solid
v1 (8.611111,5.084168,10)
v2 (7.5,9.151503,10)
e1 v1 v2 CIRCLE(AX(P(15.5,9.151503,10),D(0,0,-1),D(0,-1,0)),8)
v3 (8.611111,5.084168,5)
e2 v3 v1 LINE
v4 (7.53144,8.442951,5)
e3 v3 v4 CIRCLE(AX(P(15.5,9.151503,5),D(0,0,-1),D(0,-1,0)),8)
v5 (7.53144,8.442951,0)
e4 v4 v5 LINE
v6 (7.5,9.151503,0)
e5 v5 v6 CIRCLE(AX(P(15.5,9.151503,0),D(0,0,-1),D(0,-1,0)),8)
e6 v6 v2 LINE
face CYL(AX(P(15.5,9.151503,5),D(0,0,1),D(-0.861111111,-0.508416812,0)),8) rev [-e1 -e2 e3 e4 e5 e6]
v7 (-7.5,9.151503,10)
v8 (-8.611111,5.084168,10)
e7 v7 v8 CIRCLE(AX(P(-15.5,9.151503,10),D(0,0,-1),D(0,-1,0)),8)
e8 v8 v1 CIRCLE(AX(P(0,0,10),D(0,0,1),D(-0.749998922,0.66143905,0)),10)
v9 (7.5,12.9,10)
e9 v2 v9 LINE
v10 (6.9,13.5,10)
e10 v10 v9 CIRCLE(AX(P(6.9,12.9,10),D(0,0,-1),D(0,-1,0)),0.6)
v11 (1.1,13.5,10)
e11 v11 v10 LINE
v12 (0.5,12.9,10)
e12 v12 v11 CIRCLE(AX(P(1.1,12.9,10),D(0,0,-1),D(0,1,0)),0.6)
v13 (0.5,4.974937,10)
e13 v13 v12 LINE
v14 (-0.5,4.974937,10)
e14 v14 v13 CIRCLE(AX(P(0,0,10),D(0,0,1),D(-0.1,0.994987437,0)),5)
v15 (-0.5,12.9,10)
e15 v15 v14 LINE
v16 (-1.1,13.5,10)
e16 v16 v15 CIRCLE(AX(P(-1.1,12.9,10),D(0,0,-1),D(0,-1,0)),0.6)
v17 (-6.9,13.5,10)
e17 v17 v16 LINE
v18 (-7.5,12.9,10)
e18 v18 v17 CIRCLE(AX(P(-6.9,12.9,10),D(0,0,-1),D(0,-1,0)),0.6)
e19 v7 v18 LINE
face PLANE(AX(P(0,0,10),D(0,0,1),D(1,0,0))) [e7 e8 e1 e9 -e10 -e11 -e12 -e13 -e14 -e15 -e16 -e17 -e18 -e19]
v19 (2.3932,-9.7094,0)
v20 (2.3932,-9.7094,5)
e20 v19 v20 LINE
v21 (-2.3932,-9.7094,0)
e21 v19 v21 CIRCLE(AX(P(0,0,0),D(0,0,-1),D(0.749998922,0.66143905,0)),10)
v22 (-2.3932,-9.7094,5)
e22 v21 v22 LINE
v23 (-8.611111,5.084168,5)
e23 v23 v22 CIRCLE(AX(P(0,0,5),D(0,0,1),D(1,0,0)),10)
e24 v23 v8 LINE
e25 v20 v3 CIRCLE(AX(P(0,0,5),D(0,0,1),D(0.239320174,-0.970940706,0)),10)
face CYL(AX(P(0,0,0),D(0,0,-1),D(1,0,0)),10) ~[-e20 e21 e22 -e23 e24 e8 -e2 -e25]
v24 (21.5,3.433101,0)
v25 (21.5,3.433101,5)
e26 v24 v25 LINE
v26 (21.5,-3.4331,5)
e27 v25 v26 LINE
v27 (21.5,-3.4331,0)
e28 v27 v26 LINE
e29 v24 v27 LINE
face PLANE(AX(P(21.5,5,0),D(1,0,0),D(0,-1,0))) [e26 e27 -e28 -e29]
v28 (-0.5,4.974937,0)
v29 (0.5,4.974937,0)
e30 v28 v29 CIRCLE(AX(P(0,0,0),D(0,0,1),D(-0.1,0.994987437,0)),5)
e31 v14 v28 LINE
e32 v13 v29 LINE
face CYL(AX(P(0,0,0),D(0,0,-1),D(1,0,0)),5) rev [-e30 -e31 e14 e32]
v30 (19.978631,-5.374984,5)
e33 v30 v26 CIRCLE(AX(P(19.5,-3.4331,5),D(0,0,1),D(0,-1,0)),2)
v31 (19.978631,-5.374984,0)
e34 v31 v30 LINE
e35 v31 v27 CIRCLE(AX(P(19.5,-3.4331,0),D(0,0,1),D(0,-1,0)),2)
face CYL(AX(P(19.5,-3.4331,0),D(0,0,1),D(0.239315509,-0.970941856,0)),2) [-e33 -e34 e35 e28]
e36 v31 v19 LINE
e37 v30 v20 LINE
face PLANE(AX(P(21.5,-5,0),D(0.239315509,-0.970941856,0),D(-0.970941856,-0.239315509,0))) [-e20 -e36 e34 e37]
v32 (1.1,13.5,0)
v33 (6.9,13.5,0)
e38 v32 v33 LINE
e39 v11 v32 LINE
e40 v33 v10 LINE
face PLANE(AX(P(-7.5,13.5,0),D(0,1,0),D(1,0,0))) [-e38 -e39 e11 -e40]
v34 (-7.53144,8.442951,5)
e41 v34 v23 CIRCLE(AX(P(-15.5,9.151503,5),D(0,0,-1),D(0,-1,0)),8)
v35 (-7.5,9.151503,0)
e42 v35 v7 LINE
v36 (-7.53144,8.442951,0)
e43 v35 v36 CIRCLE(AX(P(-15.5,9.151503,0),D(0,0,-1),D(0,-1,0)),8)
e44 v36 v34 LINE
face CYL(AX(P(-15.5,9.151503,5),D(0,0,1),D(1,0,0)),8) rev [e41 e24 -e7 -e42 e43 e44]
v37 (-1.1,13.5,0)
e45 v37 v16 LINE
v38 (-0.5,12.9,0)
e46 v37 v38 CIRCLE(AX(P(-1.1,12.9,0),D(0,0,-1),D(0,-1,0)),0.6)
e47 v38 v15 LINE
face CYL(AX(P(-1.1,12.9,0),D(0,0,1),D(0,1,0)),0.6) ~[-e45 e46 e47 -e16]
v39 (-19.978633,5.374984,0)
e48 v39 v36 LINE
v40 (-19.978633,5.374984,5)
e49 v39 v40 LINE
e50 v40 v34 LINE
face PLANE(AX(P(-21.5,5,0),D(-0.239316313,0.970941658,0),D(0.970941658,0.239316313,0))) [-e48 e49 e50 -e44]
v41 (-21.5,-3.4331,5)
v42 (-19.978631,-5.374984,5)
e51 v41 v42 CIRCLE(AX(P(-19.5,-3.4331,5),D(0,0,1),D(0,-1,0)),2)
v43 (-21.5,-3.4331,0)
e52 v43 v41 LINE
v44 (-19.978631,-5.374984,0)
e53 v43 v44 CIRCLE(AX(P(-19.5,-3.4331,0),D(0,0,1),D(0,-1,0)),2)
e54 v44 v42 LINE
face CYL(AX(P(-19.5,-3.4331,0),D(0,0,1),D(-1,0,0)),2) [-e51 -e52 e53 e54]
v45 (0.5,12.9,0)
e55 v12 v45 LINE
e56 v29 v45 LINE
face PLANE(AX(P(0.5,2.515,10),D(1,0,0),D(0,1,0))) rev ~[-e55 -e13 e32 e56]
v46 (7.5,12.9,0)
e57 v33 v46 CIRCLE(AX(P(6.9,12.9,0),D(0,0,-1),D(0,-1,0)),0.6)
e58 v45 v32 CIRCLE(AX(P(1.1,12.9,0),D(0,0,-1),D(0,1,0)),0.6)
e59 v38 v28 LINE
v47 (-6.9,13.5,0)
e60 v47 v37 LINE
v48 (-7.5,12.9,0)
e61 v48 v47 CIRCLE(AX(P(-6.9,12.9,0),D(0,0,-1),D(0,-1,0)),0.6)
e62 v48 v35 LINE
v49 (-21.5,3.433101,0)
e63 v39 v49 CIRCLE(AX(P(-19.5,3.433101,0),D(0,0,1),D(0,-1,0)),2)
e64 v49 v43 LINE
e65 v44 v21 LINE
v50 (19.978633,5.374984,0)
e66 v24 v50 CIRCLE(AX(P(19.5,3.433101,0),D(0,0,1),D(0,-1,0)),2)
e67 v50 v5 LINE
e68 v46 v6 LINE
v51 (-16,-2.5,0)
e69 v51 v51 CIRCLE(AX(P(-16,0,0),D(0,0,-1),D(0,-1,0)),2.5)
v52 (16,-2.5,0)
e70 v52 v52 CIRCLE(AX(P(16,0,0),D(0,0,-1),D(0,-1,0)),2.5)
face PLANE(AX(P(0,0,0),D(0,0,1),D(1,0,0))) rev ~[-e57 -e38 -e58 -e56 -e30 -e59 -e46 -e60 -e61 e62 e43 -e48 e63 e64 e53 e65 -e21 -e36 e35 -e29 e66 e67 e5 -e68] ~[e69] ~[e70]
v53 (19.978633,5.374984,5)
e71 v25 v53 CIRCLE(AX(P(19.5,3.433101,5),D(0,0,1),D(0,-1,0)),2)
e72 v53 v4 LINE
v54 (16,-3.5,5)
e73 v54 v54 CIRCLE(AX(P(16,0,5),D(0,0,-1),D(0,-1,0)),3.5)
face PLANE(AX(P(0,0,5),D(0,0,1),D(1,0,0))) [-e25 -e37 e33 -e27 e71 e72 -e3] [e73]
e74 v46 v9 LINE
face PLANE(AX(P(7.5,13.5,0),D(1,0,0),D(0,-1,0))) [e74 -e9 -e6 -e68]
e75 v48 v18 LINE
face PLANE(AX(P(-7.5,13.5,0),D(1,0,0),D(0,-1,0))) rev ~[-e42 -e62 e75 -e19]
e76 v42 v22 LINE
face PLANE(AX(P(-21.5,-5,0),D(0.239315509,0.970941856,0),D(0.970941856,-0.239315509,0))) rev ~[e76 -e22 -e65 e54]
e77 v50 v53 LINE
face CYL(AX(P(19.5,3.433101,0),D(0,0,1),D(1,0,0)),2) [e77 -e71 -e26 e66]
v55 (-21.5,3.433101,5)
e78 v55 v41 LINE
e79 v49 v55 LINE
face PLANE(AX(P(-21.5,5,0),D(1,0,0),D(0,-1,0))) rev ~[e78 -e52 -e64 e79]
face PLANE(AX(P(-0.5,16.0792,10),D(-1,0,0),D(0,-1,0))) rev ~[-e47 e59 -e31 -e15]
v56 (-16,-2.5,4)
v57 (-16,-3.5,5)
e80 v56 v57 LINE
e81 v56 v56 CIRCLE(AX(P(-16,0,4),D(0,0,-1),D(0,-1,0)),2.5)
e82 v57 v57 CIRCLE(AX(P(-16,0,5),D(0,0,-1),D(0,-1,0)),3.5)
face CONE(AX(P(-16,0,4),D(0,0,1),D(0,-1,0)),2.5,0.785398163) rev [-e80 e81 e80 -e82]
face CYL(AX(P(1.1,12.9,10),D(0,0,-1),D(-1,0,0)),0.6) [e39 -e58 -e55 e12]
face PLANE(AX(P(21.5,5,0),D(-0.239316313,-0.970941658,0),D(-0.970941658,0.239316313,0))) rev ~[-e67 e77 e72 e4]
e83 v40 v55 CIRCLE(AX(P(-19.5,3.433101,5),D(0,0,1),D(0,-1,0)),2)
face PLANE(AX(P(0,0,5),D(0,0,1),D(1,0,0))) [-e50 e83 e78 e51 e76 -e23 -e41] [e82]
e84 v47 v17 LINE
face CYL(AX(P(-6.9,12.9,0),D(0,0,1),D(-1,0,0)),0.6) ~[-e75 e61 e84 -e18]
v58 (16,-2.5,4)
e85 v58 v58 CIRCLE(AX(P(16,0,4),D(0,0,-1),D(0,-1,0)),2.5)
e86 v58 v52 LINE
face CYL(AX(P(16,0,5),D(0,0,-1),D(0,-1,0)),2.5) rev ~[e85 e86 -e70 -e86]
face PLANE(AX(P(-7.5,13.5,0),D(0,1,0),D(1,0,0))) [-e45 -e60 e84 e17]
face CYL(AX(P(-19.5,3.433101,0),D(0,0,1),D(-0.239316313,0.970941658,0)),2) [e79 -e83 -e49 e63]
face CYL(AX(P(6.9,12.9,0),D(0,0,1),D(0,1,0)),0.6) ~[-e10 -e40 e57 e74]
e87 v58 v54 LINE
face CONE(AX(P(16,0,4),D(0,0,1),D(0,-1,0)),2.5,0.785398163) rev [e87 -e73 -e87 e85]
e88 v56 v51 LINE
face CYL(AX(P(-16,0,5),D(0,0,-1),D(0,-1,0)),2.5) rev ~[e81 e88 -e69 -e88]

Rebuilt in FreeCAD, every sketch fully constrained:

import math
import FreeCAD as App
import Part
import Sketcher


def edges_at(feature, points):
    """Names of the edges that pass closest to the given points."""
    edges = feature.Shape.Edges
    near = lambda p: min(range(len(edges)), key=lambda i: edges[i].distToShape(Part.Vertex(*p))[0])
    return sorted({f"Edge{near(p) + 1}" for p in points})


def add_polygon(sketch, points):
    """Adds a closed chain of lines whose ends are joined by coincident constraints."""
    first, n = sketch.GeometryCount, len(points)
    for a, b in zip(points, points[1:] + points[:1]):
        sketch.addGeometry(Part.LineSegment(App.Vector(*a, 0), App.Vector(*b, 0)), False)
    for i in range(n):
        sketch.addConstraint(Sketcher.Constraint("Coincident", first + i, 2, first + (i + 1) % n, 1))

doc = App.newDocument("Part")
params = doc.addObject("Spreadsheet::Sheet", "Params")
for row, (alias, value) in enumerate([
    ("sketch1_radius", "10 mm"),
    ("sketch1_height", "10 mm"),
    ("pad1_length", "5 mm"),
    ("sketch2_diameter", "10 mm"),
    ("sketch2_radius", "10 mm"),
    ("sketch2_width", "15 mm"),
    ("pad2_length", "10 mm"),
    ("fillet_radius", "8 mm"),
    ("fillet2_radius", "2 mm"),
    ("sketch3_width", "1 mm"),
    ("fillet3_radius", "0.6 mm"),
    ("sketch4_diameter", "5 mm"),
    ("hole_diameter", "5 mm"),
    ("chamfer_size", "1 mm"),
], start=1):
    params.set(f"A{row}", alias)
    params.set(f"B{row}", "=" + value)
    params.setAlias(f"B{row}", alias)

body = doc.addObject("PartDesign::Body", "Body")
body.AllowCompound = True

# Sketch on XY plane
sketch1 = body.newObject("Sketcher::SketchObject", "Sketch")
sketch1.AttachmentSupport = (doc.getObject("XY_Plane"), [""])
sketch1.MapMode = "FlatFace"
sketch1.addGeometry([
    Part.LineSegment(App.Vector(-7.5, 8.5, 0), App.Vector(-21.5, 5, 0)),  # 0
    Part.LineSegment(App.Vector(-21.5, 5, 0), App.Vector(-21.5, -5, 0)),  # 1
    Part.LineSegment(App.Vector(-21.5, -5, 0), App.Vector(-2.4, -9.7, 0)),  # 2
    Part.ArcOfCircle(Part.Circle(App.Vector(0, 0, 0), App.Vector(0, 0, 1), 10), math.radians(139), math.radians(256)),  # 3
    Part.LineSegment(App.Vector(-7.5, 6.6, 0), App.Vector(-7.5, 8.5, 0)),  # 4
    Part.ArcOfCircle(Part.Circle(App.Vector(0, 0, 0), App.Vector(0, 0, 1), 10), math.radians(-76), math.radians(41)),  # 5
    Part.LineSegment(App.Vector(2.4, -9.7, 0), App.Vector(21.5, -5, 0)),  # 6
    Part.LineSegment(App.Vector(21.5, -5, 0), App.Vector(21.5, 5, 0)),  # 7
    Part.LineSegment(App.Vector(21.5, 5, 0), App.Vector(7.5, 8.5, 0)),  # 8
    Part.LineSegment(App.Vector(7.5, 8.5, 0), App.Vector(7.5, 6.6, 0)),  # 9
], False)
sketch1.addConstraint([
    Sketcher.Constraint("Coincident", 0, 2, 1, 1),
    Sketcher.Constraint("Coincident", 1, 2, 2, 1),
    Sketcher.Constraint("Tangent", 2, 2, 3, 2),
    Sketcher.Constraint("Coincident", 3, 1, 4, 1),
    Sketcher.Constraint("Coincident", 4, 2, 0, 1),
    Sketcher.Constraint("Tangent", 5, 1, 6, 1),
    Sketcher.Constraint("Coincident", 6, 2, 7, 1),
    Sketcher.Constraint("Coincident", 7, 2, 8, 1),
    Sketcher.Constraint("Coincident", 8, 2, 9, 1),
    Sketcher.Constraint("Coincident", 9, 2, 5, 2),
    Sketcher.Constraint("Vertical", 1),
    Sketcher.Constraint("Vertical", 4),
    Sketcher.Constraint("Vertical", 7),
    Sketcher.Constraint("Vertical", 9),
    Sketcher.Constraint("Coincident", 3, 3, -1, 1),
    Sketcher.Constraint("Coincident", 5, 3, -1, 1),
    Sketcher.Constraint("Equal", 3, 5),
    Sketcher.Constraint("Symmetric", 0, 2, 6, 2, -1, 1),
    Sketcher.Constraint("Symmetric", 4, 2, 8, 2, -2),
    Sketcher.Constraint("Parallel", 0, 6),
    Sketcher.Constraint("Parallel", 2, 8),
    Sketcher.Constraint("Horizontal", 2, 2, 5, 1),
    Sketcher.Constraint("Radius", 3, 10.0),
    Sketcher.Constraint("DistanceY", 1, 2, 1, 1, 10.0),
    Sketcher.Constraint("DistanceX", 4, 2, 8, 2, 15.0),
    Sketcher.Constraint("DistanceX", 0, 2, -1, 1, 21.5),
])
sketch1.setExpression("Constraints[22]", "Params.sketch1_radius")
sketch1.setExpression("Constraints[23]", "Params.sketch1_height")
pad1 = body.newObject("PartDesign::Pad", "Pad")
pad1.Profile = sketch1
pad1.setExpression("Length", "Params.pad1_length")

# Sketch on XY plane
sketch2 = body.newObject("Sketcher::SketchObject", "Sketch001")
sketch2.AttachmentSupport = (doc.getObject("XY_Plane"), [""])
sketch2.MapMode = "FlatFace"
sketch2.addGeometry([
    Part.LineSegment(App.Vector(-8, 14, 0), App.Vector(-8, 7, 0)),  # 0
    Part.ArcOfCircle(Part.Circle(App.Vector(0, 0, 0), App.Vector(0, 0, 1), 10), math.radians(139), math.radians(401)),  # 1
    Part.LineSegment(App.Vector(8, 7, 0), App.Vector(8, 14, 0)),  # 2
    Part.LineSegment(App.Vector(8, 14, 0), App.Vector(-8, 14, 0)),  # 3
    Part.Circle(App.Vector(0, 0, 0), App.Vector(0, 0, 1), 5),  # 4
], False)
sketch2.addConstraint([
    Sketcher.Constraint("Coincident", 0, 2, 1, 1),
    Sketcher.Constraint("Coincident", 1, 2, 2, 1),
    Sketcher.Constraint("Coincident", 2, 2, 3, 1),
    Sketcher.Constraint("Coincident", 3, 2, 0, 1),
    Sketcher.Constraint("Vertical", 0),
    Sketcher.Constraint("Vertical", 2),
    Sketcher.Constraint("Horizontal", 3),
    Sketcher.Constraint("Coincident", 1, 3, -1, 1),
    Sketcher.Constraint("Coincident", 4, 3, -1, 1),
    Sketcher.Constraint("Horizontal", 0, 2, 1, 2),
    Sketcher.Constraint("Diameter", 4, 10.0),
    Sketcher.Constraint("Radius", 1, 10.0),
    Sketcher.Constraint("DistanceX", 3, 2, 3, 1, 15.0),
    Sketcher.Constraint("DistanceY", -1, 1, 2, 2, 13.5),
])
sketch2.setExpression("Constraints[10]", "Params.sketch2_diameter")
sketch2.setExpression("Constraints[11]", "Params.sketch2_radius")
sketch2.setExpression("Constraints[12]", "Params.sketch2_width")
pad2 = body.newObject("PartDesign::Pad", "Pad001")
pad2.Profile = sketch2
pad2.setExpression("Length", "Params.pad2_length")
doc.recompute()

fillet = body.newObject("PartDesign::Fillet", "Fillet")
fillet.Base = (pad2, edges_at(pad2, [(7.5, 6.614, 7.5), (-7.5, 6.614, 7.5)]))
fillet.setExpression("Radius", "Params.fillet_radius")
doc.recompute()

fillet2 = body.newObject("PartDesign::Fillet", "Fillet001")
fillet2.Base = (fillet, edges_at(fillet, [
    (21.5, 5, 2.5),
    (21.5, -5, 2.5),
    (-21.5, -5, 2.5),
    (-21.5, 5, 2.5),
]))
fillet2.setExpression("Radius", "Params.fillet2_radius")

# Sketch on XY plane
sketch3 = body.newObject("Sketcher::SketchObject", "Sketch002")
sketch3.AttachmentSupport = (doc.getObject("XY_Plane"), [""])
sketch3.MapMode = "FlatFace"
sketch3.AttachmentOffset = App.Placement(App.Vector(0, 0, 10), App.Rotation())
add_polygon(sketch3, [(-0.5, 16.1), (-0.5, 2.5), (0.5, 2.5), (0.5, 16.1)])  # lines 0-3
sketch3.addConstraint([
    Sketcher.Constraint("Vertical", 0),
    Sketcher.Constraint("Horizontal", 1),
    Sketcher.Constraint("Vertical", 2),
    Sketcher.Constraint("Horizontal", 3),
    Sketcher.Constraint("DistanceX", 1, 1, 1, 2, 1.0),
    Sketcher.Constraint("DistanceX", 0, 2, -1, 1, 0.5),
    Sketcher.Constraint("DistanceY", 0, 2, 0, 1, 13.5642),
    Sketcher.Constraint("DistanceY", -1, 1, 0, 2, 2.515),
])
sketch3.setExpression("Constraints[8]", "Params.sketch3_width")
pocket1 = body.newObject("PartDesign::Pocket", "Pocket")
pocket1.Profile = sketch3
pocket1.Type = "ThroughAll"
doc.recompute()

fillet3 = body.newObject("PartDesign::Fillet", "Fillet002")
fillet3.Base = (pocket1, edges_at(pocket1, [
    (-7.5, 13.5, 5),
    (-0.5, 13.5, 5),
    (0.5, 13.5, 5),
    (7.5, 13.5, 5),
]))
fillet3.setExpression("Radius", "Params.fillet3_radius")

# Sketch on XY plane
sketch4 = body.newObject("Sketcher::SketchObject", "Sketch003")
sketch4.AttachmentSupport = (doc.getObject("XY_Plane"), [""])
sketch4.MapMode = "FlatFace"
sketch4.AttachmentOffset = App.Placement(App.Vector(0, 0, 5), App.Rotation())
sketch4.addGeometry([
    Part.Circle(App.Vector(-16, 0, 0), App.Vector(0, 0, 1), 2.5),
    Part.Circle(App.Vector(16, 0, 0), App.Vector(0, 0, 1), 2.5),
], False)
sketch4.addConstraint([
    Sketcher.Constraint("Equal", 0, 1),
    Sketcher.Constraint("Symmetric", 0, 3, 1, 3, -1, 1),
    Sketcher.Constraint("PointOnObject", 0, 3, -1),
    Sketcher.Constraint("Diameter", 0, 5.0),
    Sketcher.Constraint("DistanceX", 0, 3, -1, 1, 16.0),
])
sketch4.setExpression("Constraints[3]", "Params.sketch4_diameter")
doc.recompute()
hole = body.newObject("PartDesign::Hole", "Hole")
hole.Profile = sketch4
hole.ThreadType = "None"
hole.setExpression("Diameter", "Params.hole_diameter")
hole.DepthType = "ThroughAll"
doc.recompute()

chamfer = body.newObject("PartDesign::Chamfer", "Chamfer")
chamfer.Base = (hole, edges_at(hole, [(-16, 2.5, 5), (16, 2.5, 5)]))
chamfer.setExpression("Size", "Params.chamfer_size")

doc.recompute()
